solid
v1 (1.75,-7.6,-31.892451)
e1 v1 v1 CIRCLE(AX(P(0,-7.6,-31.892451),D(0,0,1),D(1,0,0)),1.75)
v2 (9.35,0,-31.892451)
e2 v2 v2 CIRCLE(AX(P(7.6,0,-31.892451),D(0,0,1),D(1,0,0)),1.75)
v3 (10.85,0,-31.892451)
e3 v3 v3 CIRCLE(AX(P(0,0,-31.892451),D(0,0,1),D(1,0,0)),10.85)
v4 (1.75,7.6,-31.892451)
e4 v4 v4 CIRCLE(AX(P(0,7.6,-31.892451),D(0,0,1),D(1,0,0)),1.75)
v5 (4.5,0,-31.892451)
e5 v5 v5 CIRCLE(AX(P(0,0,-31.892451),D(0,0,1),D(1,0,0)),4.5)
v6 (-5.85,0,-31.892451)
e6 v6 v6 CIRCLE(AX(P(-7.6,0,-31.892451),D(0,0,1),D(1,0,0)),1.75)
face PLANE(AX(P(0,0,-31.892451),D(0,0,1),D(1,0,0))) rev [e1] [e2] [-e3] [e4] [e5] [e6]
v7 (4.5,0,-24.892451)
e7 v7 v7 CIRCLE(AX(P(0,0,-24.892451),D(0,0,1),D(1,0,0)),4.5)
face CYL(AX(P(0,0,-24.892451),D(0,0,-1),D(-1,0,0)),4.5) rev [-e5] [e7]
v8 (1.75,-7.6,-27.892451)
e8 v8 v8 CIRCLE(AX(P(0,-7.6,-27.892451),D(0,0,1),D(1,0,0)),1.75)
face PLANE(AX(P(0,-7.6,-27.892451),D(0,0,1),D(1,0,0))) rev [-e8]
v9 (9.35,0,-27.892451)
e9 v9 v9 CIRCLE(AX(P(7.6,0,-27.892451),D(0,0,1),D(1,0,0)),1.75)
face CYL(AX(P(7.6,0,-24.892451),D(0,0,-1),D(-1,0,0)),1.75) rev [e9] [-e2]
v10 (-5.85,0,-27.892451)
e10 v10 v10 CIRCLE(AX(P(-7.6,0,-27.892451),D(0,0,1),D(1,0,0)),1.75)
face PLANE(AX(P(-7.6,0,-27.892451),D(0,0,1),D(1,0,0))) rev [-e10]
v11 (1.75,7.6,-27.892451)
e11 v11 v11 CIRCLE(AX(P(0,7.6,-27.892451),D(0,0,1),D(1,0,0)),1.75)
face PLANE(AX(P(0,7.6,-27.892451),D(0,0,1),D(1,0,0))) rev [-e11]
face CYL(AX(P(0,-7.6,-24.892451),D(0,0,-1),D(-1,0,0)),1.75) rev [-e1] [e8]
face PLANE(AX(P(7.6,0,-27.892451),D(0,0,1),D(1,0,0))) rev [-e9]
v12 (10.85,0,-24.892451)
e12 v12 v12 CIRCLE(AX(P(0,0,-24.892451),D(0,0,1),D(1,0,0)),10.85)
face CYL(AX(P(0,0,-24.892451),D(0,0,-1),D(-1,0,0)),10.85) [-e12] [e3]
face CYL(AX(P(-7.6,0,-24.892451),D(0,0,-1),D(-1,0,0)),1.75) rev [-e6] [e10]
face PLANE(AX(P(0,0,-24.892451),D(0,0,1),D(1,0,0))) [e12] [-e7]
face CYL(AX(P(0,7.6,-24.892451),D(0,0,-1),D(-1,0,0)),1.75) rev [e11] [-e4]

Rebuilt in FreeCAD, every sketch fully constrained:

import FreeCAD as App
import Part
import Sketcher
from FreeCAD import Vector

doc = App.newDocument("Part")
body = doc.addObject("PartDesign::Body", "Body")

# Sketch on XY plane
sketch1 = body.newObject("Sketcher::SketchObject", "Sketch")
sketch1.AttachmentSupport = (doc.getObject("XY_Plane"), [""])
sketch1.MapMode = "FlatFace"
sketch1.AttachmentOffset = App.Placement(Vector(0, 0, -31.892451), App.Rotation())
sketch1.addGeometry([
    Part.Circle(Vector(0, 0, 0), Vector(0, 0, 1), 10.85),  # 0
    Part.Circle(Vector(0, -7.6, 0), Vector(0, 0, 1), 1.75),  # 1
    Part.Circle(Vector(-7.6, 0, 0), Vector(0, 0, 1), 1.75),  # 2
    Part.Circle(Vector(0, 0, 0), Vector(0, 0, 1), 4.5),  # 3
    Part.Circle(Vector(0, 7.6, 0), Vector(0, 0, 1), 1.75),  # 4
    Part.Circle(Vector(7.6, 0, 0), Vector(0, 0, 1), 1.75),  # 5
], False)
sketch1.addConstraint([
    Sketcher.Constraint("Coincident", 0, 3, -1, 1),
    Sketcher.Constraint("Coincident", 3, 3, -1, 1),
    Sketcher.Constraint("Equal", 1, 2),
    Sketcher.Constraint("Equal", 2, 4),
    Sketcher.Constraint("Equal", 4, 5),
    Sketcher.Constraint("Symmetric", 1, 3, 4, 3, -1, 1),
    Sketcher.Constraint("Symmetric", 2, 3, 5, 3, -1, 1),
    Sketcher.Constraint("PointOnObject", 1, 3, -2),
    Sketcher.Constraint("PointOnObject", 2, 3, -1),
    Sketcher.Constraint("Diameter", 3, 9.0),
    Sketcher.Constraint("Diameter", 0, 21.7),
    Sketcher.Constraint("Diameter", 1, 3.5),
    Sketcher.Constraint("DistanceY", 1, 3, -1, 1, 7.6),
    Sketcher.Constraint("DistanceX", 2, 3, -1, 1, 7.6),
])
pad1 = body.newObject("PartDesign::Pad", "Pad")
pad1.Profile = sketch1
pad1.Length = 7

# Sketch on XY plane
sketch2 = body.newObject("Sketcher::SketchObject", "Sketch001")
sketch2.AttachmentSupport = (doc.getObject("XY_Plane"), [""])
sketch2.MapMode = "FlatFace"
sketch2.AttachmentOffset = App.Placement(Vector(0, 0, -24.892451), App.Rotation())
sketch2.addGeometry([
    Part.Circle(Vector(0, 7.6, 0), Vector(0, 0, 1), 1.75),
    Part.Circle(Vector(-7.6, 0, 0), Vector(0, 0, 1), 1.75),
    Part.Circle(Vector(0, -7.6, 0), Vector(0, 0, 1), 1.75),
    Part.Circle(Vector(7.6, 0, 0), Vector(0, 0, 1), 1.75),
], False)
sketch2.addConstraint([
    Sketcher.Constraint("Equal", 0, 1),
    Sketcher.Constraint("Equal", 1, 2),
    Sketcher.Constraint("Equal", 2, 3),
    Sketcher.Constraint("Symmetric", 0, 3, 2, 3, -1, 1),
    Sketcher.Constraint("Symmetric", 1, 3, 3, 3, -1, 1),
    Sketcher.Constraint("PointOnObject", 0, 3, -2),
    Sketcher.Constraint("PointOnObject", 1, 3, -1),
    Sketcher.Constraint("Diameter", 0, 3.5),
    Sketcher.Constraint("DistanceY", -1, 1, 0, 3, 7.6),
    Sketcher.Constraint("DistanceX", 1, 3, -1, 1, 7.6),
])
pad2 = body.newObject("PartDesign::Pad", "Pad001")
pad2.Profile = sketch2
pad2.Length = 3
pad2.Reversed = True

doc.recompute()
